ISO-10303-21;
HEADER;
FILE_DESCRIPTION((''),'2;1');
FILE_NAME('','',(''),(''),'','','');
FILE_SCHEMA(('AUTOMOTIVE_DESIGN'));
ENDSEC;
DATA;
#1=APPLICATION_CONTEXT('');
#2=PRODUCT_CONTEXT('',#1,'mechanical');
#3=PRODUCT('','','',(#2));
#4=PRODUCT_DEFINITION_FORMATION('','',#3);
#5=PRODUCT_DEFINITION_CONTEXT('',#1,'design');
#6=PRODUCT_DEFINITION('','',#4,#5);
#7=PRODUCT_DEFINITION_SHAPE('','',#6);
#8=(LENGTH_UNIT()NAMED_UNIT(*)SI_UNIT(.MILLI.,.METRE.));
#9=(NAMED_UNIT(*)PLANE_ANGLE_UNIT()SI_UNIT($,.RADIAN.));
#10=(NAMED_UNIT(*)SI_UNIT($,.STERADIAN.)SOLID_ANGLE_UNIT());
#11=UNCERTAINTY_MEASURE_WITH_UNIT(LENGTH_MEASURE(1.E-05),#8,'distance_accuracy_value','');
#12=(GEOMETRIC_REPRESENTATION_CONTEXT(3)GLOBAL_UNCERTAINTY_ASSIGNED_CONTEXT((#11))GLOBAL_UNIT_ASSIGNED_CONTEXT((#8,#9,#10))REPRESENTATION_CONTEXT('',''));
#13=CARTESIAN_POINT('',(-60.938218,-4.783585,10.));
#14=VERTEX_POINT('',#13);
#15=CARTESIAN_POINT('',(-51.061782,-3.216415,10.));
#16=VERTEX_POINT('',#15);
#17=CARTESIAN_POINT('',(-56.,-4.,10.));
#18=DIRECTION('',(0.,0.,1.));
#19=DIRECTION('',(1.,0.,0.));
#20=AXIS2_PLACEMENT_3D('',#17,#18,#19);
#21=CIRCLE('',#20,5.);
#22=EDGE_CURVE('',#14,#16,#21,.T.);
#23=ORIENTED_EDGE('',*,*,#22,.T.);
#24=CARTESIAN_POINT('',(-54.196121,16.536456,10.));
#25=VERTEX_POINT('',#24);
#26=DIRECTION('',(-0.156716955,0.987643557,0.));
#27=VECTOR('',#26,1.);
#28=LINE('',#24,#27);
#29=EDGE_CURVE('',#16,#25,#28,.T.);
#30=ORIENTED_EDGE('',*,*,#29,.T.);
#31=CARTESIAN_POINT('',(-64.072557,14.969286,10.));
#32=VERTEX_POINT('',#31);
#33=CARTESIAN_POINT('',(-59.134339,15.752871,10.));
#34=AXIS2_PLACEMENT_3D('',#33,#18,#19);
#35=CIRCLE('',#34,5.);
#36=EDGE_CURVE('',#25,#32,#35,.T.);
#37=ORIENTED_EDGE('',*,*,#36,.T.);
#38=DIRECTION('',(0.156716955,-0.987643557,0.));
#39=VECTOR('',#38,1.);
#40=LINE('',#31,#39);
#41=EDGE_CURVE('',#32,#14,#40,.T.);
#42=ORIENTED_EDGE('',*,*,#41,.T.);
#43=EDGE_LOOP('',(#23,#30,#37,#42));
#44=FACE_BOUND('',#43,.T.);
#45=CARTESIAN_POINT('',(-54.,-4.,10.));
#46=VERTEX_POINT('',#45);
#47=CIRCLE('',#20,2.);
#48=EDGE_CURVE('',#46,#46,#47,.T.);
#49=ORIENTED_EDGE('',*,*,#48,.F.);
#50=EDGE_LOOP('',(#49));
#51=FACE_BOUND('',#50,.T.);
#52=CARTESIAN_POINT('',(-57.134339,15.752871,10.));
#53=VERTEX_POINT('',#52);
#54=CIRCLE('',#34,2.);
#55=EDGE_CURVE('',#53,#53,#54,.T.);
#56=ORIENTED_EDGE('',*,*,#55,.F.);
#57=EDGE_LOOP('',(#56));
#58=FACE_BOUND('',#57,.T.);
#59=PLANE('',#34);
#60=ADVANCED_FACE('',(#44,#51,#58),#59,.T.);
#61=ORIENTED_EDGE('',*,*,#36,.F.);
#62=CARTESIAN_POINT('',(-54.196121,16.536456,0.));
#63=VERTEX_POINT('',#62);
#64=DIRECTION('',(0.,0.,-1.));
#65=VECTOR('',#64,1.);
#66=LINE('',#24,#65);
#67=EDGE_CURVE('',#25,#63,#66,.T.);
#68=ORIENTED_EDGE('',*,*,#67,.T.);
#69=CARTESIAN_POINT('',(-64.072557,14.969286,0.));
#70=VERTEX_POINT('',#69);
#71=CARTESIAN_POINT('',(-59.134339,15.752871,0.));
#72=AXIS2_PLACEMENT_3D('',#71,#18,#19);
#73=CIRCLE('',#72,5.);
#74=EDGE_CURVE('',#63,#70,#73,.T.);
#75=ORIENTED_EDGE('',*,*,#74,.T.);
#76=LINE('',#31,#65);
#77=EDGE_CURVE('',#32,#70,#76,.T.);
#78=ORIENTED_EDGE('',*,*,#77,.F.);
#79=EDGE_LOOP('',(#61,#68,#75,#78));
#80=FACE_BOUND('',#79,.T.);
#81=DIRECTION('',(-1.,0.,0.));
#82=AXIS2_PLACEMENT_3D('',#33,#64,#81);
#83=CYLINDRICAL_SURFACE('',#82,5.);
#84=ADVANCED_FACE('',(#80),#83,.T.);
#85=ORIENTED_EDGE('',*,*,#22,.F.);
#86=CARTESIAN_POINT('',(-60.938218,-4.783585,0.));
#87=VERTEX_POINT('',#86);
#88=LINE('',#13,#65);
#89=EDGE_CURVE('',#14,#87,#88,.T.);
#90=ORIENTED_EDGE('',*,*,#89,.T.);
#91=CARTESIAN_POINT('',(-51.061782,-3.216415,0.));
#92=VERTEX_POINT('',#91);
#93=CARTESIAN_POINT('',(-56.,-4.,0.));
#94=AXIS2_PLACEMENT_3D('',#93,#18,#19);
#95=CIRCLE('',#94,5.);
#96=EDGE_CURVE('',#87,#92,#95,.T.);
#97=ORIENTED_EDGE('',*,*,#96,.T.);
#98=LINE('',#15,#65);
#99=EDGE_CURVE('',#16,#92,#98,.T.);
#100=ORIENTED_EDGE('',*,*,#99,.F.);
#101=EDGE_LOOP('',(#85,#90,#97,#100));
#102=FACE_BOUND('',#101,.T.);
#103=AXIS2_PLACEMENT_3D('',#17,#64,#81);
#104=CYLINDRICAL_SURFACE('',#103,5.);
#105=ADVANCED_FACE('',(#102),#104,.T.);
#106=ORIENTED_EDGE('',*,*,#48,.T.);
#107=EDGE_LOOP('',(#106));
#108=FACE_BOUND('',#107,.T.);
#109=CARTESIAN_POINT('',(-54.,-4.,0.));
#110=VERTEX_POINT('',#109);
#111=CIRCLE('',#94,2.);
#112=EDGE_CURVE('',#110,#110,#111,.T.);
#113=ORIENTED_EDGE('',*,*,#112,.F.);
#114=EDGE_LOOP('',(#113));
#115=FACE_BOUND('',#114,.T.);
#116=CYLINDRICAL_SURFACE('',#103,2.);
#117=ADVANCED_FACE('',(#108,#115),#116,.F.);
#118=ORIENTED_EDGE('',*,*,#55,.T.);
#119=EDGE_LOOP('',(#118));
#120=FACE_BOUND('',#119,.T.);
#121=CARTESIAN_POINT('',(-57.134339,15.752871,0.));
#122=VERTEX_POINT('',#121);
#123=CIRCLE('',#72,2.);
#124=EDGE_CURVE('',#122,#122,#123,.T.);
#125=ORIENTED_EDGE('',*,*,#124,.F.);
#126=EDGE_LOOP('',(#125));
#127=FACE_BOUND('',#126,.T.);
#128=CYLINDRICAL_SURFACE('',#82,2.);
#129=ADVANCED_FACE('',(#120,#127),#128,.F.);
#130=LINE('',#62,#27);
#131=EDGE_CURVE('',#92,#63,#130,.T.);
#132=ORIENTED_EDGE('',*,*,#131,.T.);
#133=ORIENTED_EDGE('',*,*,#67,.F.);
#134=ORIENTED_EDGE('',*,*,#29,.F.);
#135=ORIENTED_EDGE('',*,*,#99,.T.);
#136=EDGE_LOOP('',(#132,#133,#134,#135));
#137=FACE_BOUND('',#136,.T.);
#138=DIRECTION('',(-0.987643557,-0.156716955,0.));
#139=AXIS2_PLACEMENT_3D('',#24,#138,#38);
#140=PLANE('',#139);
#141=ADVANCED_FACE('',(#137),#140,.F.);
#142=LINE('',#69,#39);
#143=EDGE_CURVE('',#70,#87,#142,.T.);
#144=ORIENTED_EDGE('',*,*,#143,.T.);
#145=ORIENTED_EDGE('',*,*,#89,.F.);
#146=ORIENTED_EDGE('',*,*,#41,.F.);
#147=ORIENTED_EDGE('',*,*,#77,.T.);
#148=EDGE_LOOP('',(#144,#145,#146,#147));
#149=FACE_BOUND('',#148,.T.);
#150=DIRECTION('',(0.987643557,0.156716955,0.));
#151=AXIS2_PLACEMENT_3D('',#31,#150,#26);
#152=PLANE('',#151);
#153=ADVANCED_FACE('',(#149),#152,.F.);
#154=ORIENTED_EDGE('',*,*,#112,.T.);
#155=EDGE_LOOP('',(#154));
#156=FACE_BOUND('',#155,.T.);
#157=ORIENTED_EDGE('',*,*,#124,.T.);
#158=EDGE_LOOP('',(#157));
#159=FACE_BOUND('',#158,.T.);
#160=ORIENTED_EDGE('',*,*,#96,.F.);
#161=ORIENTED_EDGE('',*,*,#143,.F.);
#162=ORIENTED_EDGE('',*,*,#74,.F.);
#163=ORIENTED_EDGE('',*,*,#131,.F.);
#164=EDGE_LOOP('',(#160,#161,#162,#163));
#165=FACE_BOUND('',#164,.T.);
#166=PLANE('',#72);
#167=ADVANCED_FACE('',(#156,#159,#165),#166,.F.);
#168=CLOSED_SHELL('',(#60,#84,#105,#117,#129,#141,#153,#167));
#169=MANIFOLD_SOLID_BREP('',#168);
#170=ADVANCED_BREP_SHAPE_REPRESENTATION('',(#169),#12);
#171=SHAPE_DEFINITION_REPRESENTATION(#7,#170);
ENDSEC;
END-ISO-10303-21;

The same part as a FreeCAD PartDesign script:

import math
import FreeCAD as App
import Part
import Sketcher

V = App.Vector

doc = App.newDocument("Part")
body = doc.addObject("PartDesign::Body", "Body")

# Sketch on XY plane
sketch1 = body.newObject("Sketcher::SketchObject", "Sketch")
sketch1.AttachmentSupport = (doc.getObject("XY_Plane"), [""])
sketch1.MapMode = "FlatFace"
sketch1.addGeometry(Part.LineSegment(V(-64.072557, 14.969286, 0), V(-60.938218, -4.783585, 0)), False)
sketch1.addGeometry(Part.ArcOfCircle(Part.Circle(V(-56, -4, 0), V(0, 0, 1), 5), math.radians(-170.983612), math.radians(9.016388)), False)
sketch1.addGeometry(Part.LineSegment(V(-51.061782, -3.216415, 0), V(-54.196121, 16.536456, 0)), False)
sketch1.addGeometry(Part.ArcOfCircle(Part.Circle(V(-59.134339, 15.752871, 0), V(0, 0, 1), 5), math.radians(9.016388), math.radians(189.016388)), False)
sketch1.addGeometry(Part.Circle(V(-56, -4, 0), V(0, 0, 1), 2), False)
sketch1.addGeometry(Part.Circle(V(-59.134339, 15.752871, 0), V(0, 0, 1), 2), False)
sketch1.addConstraint(Sketcher.Constraint("Tangent", 0, 2, 1, 1))
sketch1.addConstraint(Sketcher.Constraint("Tangent", 1, 2, 2, 1))
sketch1.addConstraint(Sketcher.Constraint("Tangent", 2, 2, 3, 1))
sketch1.addConstraint(Sketcher.Constraint("Tangent", 3, 2, 0, 1))
sketch1.addConstraint(Sketcher.Constraint("Coincident", 4, 3, 1, 3))
sketch1.addConstraint(Sketcher.Constraint("Coincident", 5, 3, 3, 3))
sketch1.addConstraint(Sketcher.Constraint("Equal", 1, 3))
sketch1.addConstraint(Sketcher.Constraint("Equal", 4, 5))
sketch1.addConstraint(Sketcher.Constraint("Diameter", 4, 4.0))
sketch1.addConstraint(Sketcher.Constraint("Radius", 1, 5.0))
sketch1.addConstraint(Sketcher.Constraint("Distance", 0, 20.0))
sketch1.addConstraint(Sketcher.Constraint("DistanceX", 1, 3, -1, 1, 56.0))
sketch1.addConstraint(Sketcher.Constraint("DistanceY", 1, 3, -1, 1, 4.0))
sketch1.addConstraint(Sketcher.Constraint("DistanceX", 3, 3, -1, 1, 59.134339))
pad1 = body.newObject("PartDesign::Pad", "Pad")
pad1.Profile = sketch1
pad1.Length = 10

doc.recompute()
